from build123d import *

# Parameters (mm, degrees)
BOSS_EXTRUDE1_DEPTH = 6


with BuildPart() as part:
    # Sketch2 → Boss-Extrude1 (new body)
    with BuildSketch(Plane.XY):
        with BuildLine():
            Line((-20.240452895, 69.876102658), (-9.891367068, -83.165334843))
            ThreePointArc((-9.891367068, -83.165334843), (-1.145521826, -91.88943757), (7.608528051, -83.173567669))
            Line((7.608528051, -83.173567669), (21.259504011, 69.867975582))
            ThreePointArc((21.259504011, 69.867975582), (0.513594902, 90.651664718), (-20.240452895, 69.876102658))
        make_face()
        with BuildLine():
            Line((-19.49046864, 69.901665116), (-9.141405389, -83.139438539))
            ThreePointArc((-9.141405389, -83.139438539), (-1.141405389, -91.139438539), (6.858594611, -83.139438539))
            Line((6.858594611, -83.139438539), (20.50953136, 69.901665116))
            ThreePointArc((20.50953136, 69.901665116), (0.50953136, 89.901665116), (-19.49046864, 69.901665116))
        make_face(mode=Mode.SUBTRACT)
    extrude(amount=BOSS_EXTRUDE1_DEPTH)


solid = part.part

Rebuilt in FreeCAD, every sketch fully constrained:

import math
import FreeCAD as App
import Part
import Sketcher

V = App.Vector

doc = App.newDocument("Part")
params = doc.addObject("Spreadsheet::Sheet", "Params")
for row, (alias, value) in enumerate([
    ("sketch1_radius", "20 mm"),
    ("sketch1_radius2", "8 mm"),
    ("sketch1_radius3", "8.75 mm"),
    ("sketch1_radius4", "20.75 mm"),
    ("pad1_length", "6 mm"),
], start=1):
    params.set(f"A{row}", alias)
    params.set(f"B{row}", "=" + value)
    params.setAlias(f"B{row}", alias)

body = doc.addObject("PartDesign::Body", "Body")

sketch1 = body.newObject("Sketcher::SketchObject", "Sketch")
sketch1.AttachmentSupport = (doc.getObject("XY_Plane"), [""])
sketch1.MapMode = "FlatFace"
sketch1.addGeometry([
    Part.LineSegment(V(-20, 70, 0), V(-10, -83, 0)),
    Part.ArcOfCircle(Part.Circle(V(-1, -83, 0), V(0, 0, 1), 9), math.radians(-180), math.radians(0)),
    Part.LineSegment(V(8, -83, 0), V(21, 70, 0)),
    Part.ArcOfCircle(Part.Circle(V(1, 70, 0), V(0, 0, 1), 21), math.radians(0), math.radians(180)),
    Part.LineSegment(V(-9, -83, 0), V(-19, 70, 0)),
    Part.ArcOfCircle(Part.Circle(V(1, 70, 0), V(0, 0, 1), 20), math.radians(0), math.radians(180)),
    Part.LineSegment(V(21, 70, 0), V(7, -83, 0)),
    Part.ArcOfCircle(Part.Circle(V(-1, -83, 0), V(0, 0, 1), 8), math.radians(180), math.radians(360)),
], False)
sketch1.addConstraint([
    Sketcher.Constraint("Coincident", 0, 2, 1, 1),
    Sketcher.Constraint("Coincident", 1, 2, 2, 1),
    Sketcher.Constraint("Coincident", 2, 2, 3, 1),
    Sketcher.Constraint("Coincident", 3, 2, 0, 1),
    Sketcher.Constraint("Coincident", 4, 2, 5, 2),
    Sketcher.Constraint("Coincident", 5, 1, 6, 1),
    Sketcher.Constraint("Coincident", 6, 2, 7, 2),
    Sketcher.Constraint("Coincident", 7, 1, 4, 1),
    Sketcher.Constraint("Coincident", 5, 3, 3, 3),
    Sketcher.Constraint("Coincident", 7, 3, 1, 3),
    Sketcher.Constraint("Parallel", 0, 4),
    Sketcher.Constraint("Parallel", 2, 6),
    Sketcher.Constraint("Horizontal", 5, 3, 4, 2),
    Sketcher.Constraint("Horizontal", 4, 2, 5, 1),
    Sketcher.Constraint("Horizontal", 7, 3, 6, 2),
    Sketcher.Constraint("Horizontal", 6, 2, 7, 1),
    Sketcher.Constraint("Radius", 5, 20.0),
    Sketcher.Constraint("Radius", 7, 8.0),
    Sketcher.Constraint("Radius", 1, 8.75),
    Sketcher.Constraint("Radius", 3, 20.75),
    Sketcher.Constraint("DistanceY", 0, 2, 3, 3, 153.067),
    Sketcher.Constraint("DistanceX", 0, 2, 3, 3, 10.400898),
    Sketcher.Constraint("Distance", 4, 153.390621),
    Sketcher.Constraint("DistanceY", 1, 3, -1, 1, 83.139439),
    Sketcher.Constraint("DistanceX", -1, 1, 3, 3, 0.509531),
    Sketcher.Constraint("DistanceY", 1, 2, 7, 3, 0.034129),
])
sketch1.setExpression("Constraints[16]", "Params.sketch1_radius")
sketch1.setExpression("Constraints[17]", "Params.sketch1_radius2")
sketch1.setExpression("Constraints[18]", "Params.sketch1_radius3")
sketch1.setExpression("Constraints[19]", "Params.sketch1_radius4")
pad1 = body.newObject("PartDesign::Pad", "Pad")
pad1.Profile = sketch1
pad1.setExpression("Length", "Params.pad1_length")

doc.recompute()
